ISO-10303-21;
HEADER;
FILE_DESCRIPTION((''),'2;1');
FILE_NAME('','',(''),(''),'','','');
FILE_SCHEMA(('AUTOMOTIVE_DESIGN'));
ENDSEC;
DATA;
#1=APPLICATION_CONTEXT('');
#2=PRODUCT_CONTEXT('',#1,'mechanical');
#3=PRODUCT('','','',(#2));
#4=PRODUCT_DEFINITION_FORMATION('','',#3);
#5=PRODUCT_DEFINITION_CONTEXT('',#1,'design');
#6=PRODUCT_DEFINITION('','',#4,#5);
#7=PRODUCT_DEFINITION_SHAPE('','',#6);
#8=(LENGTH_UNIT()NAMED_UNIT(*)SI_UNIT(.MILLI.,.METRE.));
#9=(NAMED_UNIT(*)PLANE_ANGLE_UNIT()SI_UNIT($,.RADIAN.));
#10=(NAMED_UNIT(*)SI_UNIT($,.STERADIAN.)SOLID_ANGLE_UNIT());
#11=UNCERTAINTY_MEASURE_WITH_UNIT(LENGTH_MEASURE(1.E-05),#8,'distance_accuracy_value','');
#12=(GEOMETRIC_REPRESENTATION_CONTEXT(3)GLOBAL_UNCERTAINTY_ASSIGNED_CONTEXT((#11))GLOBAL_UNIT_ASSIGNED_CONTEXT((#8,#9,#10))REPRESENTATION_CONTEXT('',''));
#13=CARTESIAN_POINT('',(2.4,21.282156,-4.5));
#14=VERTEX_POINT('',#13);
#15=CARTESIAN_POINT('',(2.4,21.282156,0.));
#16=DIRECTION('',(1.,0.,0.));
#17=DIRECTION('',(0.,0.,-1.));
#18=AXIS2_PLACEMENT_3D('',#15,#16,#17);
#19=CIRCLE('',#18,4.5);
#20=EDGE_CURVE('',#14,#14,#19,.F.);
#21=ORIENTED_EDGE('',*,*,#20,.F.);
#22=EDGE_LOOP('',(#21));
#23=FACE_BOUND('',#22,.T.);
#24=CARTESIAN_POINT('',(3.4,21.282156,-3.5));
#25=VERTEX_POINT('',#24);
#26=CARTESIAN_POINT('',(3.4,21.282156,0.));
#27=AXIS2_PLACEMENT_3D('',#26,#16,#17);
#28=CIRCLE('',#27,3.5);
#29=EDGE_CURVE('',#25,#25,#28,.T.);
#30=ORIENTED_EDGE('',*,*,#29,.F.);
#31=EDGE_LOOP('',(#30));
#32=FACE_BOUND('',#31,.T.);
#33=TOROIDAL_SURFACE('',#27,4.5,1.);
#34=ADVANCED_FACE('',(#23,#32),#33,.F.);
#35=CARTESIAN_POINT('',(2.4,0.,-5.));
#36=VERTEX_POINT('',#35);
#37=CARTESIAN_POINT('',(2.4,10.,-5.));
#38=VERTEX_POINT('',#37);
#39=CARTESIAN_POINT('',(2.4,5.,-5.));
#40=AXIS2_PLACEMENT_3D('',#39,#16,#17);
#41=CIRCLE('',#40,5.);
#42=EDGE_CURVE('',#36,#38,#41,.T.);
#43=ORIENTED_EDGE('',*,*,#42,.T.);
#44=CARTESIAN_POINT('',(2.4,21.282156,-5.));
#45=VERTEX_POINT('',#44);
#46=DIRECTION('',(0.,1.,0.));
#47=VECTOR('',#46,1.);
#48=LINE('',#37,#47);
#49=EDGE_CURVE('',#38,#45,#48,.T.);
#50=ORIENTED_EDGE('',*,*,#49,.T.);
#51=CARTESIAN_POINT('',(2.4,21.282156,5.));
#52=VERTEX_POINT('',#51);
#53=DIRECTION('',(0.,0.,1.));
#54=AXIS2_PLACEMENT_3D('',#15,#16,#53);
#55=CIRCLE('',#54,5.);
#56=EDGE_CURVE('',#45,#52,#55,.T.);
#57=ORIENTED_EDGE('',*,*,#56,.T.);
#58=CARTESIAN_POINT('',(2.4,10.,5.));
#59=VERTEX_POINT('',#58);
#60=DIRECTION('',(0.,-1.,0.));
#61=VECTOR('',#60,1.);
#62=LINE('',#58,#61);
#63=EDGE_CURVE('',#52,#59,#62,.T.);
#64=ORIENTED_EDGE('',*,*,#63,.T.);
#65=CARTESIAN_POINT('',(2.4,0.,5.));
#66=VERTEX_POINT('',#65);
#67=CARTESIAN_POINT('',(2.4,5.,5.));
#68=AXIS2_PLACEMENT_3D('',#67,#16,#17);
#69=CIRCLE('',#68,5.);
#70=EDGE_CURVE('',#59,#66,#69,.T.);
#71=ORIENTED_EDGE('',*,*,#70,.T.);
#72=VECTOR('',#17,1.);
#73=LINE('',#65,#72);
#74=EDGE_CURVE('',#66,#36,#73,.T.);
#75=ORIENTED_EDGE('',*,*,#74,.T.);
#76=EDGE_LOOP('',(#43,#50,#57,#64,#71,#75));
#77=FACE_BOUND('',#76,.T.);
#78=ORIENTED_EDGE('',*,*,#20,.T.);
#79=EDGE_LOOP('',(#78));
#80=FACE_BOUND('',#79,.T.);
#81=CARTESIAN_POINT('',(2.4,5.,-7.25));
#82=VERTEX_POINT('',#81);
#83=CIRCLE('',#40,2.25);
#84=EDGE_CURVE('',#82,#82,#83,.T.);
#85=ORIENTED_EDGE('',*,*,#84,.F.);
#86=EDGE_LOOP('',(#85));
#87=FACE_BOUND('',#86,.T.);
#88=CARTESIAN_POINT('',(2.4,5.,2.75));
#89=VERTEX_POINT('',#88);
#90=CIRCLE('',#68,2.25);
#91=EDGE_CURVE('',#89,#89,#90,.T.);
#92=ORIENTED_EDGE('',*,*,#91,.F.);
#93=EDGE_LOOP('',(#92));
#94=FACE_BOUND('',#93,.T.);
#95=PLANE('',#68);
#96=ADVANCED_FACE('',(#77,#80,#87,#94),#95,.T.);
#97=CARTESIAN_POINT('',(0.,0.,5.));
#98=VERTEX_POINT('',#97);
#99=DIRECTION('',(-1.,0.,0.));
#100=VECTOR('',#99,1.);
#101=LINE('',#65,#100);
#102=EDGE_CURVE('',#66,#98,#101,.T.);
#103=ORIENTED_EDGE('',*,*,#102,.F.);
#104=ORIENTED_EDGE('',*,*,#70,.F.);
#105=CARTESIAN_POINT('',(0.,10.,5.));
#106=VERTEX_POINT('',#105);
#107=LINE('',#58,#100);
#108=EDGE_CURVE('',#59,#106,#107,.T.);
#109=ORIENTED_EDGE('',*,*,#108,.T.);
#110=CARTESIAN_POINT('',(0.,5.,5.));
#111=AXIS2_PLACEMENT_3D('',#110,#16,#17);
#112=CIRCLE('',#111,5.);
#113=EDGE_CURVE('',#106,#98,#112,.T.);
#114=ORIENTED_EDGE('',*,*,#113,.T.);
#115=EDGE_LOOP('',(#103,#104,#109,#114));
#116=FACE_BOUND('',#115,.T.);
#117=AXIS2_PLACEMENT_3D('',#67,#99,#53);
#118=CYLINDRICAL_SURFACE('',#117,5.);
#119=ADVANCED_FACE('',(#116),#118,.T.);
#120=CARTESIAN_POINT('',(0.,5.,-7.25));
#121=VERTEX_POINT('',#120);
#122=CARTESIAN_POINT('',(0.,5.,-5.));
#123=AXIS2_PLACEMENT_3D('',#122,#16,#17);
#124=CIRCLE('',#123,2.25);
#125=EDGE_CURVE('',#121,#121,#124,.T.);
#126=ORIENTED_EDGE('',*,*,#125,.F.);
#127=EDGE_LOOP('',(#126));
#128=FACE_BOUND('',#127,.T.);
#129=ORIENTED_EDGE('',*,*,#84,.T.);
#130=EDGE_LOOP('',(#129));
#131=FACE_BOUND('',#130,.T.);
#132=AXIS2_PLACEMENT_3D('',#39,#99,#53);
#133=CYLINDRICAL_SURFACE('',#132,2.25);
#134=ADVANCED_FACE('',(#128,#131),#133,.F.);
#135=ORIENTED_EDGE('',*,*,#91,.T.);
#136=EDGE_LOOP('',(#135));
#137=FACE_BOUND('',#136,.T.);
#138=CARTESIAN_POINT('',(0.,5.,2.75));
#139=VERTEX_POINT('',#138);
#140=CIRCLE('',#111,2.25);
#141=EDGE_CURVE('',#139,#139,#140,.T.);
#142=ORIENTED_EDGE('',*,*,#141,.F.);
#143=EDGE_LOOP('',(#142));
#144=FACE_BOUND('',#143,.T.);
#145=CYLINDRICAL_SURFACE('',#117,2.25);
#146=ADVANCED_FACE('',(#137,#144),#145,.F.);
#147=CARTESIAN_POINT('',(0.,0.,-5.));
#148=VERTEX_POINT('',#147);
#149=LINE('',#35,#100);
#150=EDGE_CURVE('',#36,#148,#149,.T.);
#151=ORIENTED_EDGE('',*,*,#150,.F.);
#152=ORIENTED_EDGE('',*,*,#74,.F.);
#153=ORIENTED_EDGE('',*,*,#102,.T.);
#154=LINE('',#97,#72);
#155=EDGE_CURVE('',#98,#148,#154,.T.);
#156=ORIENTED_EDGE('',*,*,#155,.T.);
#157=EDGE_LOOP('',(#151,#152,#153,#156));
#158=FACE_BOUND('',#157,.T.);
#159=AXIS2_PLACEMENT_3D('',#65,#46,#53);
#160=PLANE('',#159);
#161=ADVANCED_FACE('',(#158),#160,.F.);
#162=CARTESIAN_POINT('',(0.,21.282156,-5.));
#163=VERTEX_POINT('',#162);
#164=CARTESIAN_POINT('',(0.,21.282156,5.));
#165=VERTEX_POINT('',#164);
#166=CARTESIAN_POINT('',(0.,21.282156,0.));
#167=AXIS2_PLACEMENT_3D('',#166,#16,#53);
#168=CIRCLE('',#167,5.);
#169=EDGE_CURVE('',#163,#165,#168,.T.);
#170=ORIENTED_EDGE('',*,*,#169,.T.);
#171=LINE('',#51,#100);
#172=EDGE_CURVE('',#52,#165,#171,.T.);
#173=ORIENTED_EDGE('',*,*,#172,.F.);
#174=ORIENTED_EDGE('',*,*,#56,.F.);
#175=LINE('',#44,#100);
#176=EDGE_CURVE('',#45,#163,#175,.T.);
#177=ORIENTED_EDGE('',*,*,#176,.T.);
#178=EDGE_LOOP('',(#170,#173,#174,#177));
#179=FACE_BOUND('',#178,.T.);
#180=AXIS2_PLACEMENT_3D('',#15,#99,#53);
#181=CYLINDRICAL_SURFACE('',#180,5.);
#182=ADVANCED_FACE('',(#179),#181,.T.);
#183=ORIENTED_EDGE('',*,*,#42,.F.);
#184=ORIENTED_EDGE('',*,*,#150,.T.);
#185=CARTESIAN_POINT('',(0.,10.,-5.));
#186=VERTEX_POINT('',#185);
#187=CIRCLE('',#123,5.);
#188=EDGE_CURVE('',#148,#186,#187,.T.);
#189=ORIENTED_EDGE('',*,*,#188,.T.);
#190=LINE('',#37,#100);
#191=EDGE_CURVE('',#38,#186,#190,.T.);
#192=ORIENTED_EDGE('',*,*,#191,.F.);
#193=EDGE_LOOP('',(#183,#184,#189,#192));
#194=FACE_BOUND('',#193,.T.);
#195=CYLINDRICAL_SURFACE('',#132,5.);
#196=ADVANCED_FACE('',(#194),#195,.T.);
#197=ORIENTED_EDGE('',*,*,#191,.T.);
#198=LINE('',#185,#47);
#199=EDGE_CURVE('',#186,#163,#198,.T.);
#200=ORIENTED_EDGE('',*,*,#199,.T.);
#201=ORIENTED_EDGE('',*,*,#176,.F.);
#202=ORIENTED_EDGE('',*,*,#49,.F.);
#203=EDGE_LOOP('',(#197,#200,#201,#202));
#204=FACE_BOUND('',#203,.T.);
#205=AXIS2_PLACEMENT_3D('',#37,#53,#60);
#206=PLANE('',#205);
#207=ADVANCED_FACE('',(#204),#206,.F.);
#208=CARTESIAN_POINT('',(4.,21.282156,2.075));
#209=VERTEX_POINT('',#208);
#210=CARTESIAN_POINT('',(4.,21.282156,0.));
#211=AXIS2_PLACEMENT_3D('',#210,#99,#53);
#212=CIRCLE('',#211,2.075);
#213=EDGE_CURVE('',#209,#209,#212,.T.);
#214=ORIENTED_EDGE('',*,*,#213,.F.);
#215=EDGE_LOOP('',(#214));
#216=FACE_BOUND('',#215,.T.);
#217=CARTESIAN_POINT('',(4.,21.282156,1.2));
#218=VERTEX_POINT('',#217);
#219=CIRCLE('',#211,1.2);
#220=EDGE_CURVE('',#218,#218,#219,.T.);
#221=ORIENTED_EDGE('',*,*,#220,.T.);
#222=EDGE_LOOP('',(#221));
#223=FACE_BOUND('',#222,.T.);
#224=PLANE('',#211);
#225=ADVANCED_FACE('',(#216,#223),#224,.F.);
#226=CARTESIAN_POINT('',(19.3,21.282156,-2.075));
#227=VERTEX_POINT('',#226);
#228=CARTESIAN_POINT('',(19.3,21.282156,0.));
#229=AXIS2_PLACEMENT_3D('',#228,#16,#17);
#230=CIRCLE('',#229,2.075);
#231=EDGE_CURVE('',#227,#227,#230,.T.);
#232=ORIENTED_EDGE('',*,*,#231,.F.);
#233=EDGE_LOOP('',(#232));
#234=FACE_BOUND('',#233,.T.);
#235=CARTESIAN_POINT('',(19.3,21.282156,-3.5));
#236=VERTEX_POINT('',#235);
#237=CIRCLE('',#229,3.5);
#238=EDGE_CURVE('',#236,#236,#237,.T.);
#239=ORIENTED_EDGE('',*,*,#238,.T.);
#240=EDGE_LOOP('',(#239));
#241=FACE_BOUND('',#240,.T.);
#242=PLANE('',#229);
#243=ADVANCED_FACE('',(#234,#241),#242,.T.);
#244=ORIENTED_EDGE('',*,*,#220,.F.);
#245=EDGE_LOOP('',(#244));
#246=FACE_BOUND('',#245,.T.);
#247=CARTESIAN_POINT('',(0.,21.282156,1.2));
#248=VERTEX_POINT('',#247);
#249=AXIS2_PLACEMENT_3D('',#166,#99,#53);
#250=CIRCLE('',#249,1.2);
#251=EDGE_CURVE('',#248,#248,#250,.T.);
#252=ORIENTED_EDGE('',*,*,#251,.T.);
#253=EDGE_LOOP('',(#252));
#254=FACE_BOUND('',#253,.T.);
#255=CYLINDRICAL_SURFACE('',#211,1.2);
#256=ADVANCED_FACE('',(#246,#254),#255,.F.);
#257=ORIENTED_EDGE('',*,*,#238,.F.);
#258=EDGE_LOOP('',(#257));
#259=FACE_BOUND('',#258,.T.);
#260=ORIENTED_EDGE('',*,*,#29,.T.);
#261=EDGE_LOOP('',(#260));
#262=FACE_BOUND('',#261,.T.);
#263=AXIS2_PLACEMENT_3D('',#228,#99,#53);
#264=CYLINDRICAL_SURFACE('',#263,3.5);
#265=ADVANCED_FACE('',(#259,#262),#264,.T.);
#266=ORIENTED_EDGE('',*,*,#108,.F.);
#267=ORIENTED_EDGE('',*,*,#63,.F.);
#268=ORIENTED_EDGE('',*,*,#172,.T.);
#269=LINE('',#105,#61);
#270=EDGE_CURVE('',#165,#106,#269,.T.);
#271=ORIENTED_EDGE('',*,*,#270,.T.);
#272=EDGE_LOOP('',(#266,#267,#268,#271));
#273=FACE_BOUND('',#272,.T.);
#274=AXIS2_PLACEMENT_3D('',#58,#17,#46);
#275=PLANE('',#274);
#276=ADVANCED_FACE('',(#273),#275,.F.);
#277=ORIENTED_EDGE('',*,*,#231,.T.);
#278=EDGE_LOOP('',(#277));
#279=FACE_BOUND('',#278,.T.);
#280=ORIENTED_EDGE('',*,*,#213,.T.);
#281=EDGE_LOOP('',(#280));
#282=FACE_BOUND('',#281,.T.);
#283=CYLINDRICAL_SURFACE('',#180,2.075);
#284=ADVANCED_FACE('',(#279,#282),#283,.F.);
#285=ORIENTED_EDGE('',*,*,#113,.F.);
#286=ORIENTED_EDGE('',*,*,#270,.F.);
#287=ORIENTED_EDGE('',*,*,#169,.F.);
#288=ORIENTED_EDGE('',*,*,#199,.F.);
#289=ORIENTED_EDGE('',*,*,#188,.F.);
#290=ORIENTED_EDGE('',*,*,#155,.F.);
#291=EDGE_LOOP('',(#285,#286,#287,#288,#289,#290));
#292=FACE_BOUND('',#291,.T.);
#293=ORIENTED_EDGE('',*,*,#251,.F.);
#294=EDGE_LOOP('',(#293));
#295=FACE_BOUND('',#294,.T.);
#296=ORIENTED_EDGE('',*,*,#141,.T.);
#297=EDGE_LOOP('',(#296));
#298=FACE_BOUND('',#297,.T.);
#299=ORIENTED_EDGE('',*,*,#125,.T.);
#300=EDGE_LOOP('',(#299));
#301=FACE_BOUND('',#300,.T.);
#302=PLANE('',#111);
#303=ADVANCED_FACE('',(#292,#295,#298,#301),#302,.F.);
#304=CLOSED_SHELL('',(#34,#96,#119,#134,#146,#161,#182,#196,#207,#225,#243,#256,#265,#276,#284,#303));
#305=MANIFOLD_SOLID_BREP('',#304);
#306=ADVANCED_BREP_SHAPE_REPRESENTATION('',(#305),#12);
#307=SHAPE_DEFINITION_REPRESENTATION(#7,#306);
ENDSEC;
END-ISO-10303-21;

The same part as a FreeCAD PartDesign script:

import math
import FreeCAD as App
import Part
import Sketcher


def edges_at(feature, points):
    """Names of the edges that pass closest to the given points."""
    edges = feature.Shape.Edges
    near = lambda p: min(range(len(edges)), key=lambda i: edges[i].distToShape(Part.Vertex(*p))[0])
    return sorted({f"Edge{near(p) + 1}" for p in points})

doc = App.newDocument("Part")
body = doc.addObject("PartDesign::Body", "Body")

# Sketch on YZ plane
sketch1 = body.newObject("Sketcher::SketchObject", "Sketch")
sketch1.AttachmentSupport = (doc.getObject("YZ_Plane"), [""])
sketch1.MapMode = "FlatFace"
sketch1.addGeometry([
    Part.LineSegment(App.Vector(0, 5, 0), App.Vector(0, -5, 0)),  # 0
    Part.ArcOfCircle(Part.Circle(App.Vector(5, -5, 0), App.Vector(0, 0, 1), 5), math.radians(180), math.radians(360)),  # 1
    Part.LineSegment(App.Vector(10, -5, 0), App.Vector(21.3, -5, 0)),  # 2
    Part.ArcOfCircle(Part.Circle(App.Vector(21.3, 0, 0), App.Vector(0, 0, 1), 5), math.radians(-90), math.radians(90)),  # 3
    Part.LineSegment(App.Vector(21.3, 5, 0), App.Vector(10, 5, 0)),  # 4
    Part.ArcOfCircle(Part.Circle(App.Vector(5, 5, 0), App.Vector(0, 0, 1), 5), math.radians(0), math.radians(180)),  # 5
    Part.Circle(App.Vector(5, 5, 0), App.Vector(0, 0, 1), 2.2),  # 6
    Part.Circle(App.Vector(5, -5, 0), App.Vector(0, 0, 1), 2.2),  # 7
    Part.Circle(App.Vector(21.3, 0, 0), App.Vector(0, 0, 1), 2.1),  # 8
], False)
sketch1.addConstraint([
    Sketcher.Constraint("Tangent", 0, 2, 1, 1),
    Sketcher.Constraint("Coincident", 1, 2, 2, 1),
    Sketcher.Constraint("Tangent", 2, 2, 3, 1),
    Sketcher.Constraint("Tangent", 3, 2, 4, 1),
    Sketcher.Constraint("Coincident", 4, 2, 5, 1),
    Sketcher.Constraint("Tangent", 5, 2, 0, 1),
    Sketcher.Constraint("Vertical", 0),
    Sketcher.Constraint("Horizontal", 2),
    Sketcher.Constraint("Horizontal", 4),
    Sketcher.Constraint("Coincident", 6, 3, 5, 3),
    Sketcher.Constraint("Coincident", 7, 3, 1, 3),
    Sketcher.Constraint("Coincident", 8, 3, 3, 3),
    Sketcher.Constraint("Equal", 1, 3),
    Sketcher.Constraint("Equal", 3, 5),
    Sketcher.Constraint("Equal", 6, 7),
    Sketcher.Constraint("Symmetric", 0, 2, 5, 2, -1, 1),
    Sketcher.Constraint("PointOnObject", 3, 3, -1),
    Sketcher.Constraint("Horizontal", 0, 2, 1, 2),
    Sketcher.Constraint("Radius", 1, 5.0),
    Sketcher.Constraint("Diameter", 6, 4.5),
    Sketcher.Constraint("Diameter", 8, 4.15),
    Sketcher.Constraint("DistanceX", 2, 1, 2, 2, 11.282156),
])
pad1 = body.newObject("PartDesign::Pad", "Pad")
pad1.Profile = sketch1
pad1.Length = 2.4

# Sketch on YZ plane
sketch2 = body.newObject("Sketcher::SketchObject", "Sketch001")
sketch2.AttachmentSupport = (doc.getObject("YZ_Plane"), [""])
sketch2.MapMode = "FlatFace"
sketch2.AttachmentOffset = App.Placement(App.Vector(0, 0, 2.4), App.Rotation())
sketch2.addGeometry([
    Part.Circle(App.Vector(21.3, 0, 0), App.Vector(0, 0, 1), 3.5),
    Part.Circle(App.Vector(21.3, 0, 0), App.Vector(0, 0, 1), 2.1),
], False)
sketch2.addConstraint([
    Sketcher.Constraint("Coincident", 1, 3, 0, 3),
    Sketcher.Constraint("PointOnObject", 0, 3, -1),
    Sketcher.Constraint("Diameter", 0, 7.0),
    Sketcher.Constraint("Diameter", 1, 4.15),
    Sketcher.Constraint("DistanceX", -1, 1, 0, 3, 21.282156),
])
pad2 = body.newObject("PartDesign::Pad", "Pad001")
pad2.Profile = sketch2
pad2.Length = 16.9
doc.recompute()

fillet = body.newObject("PartDesign::Fillet", "Fillet")
fillet.Base = (pad2, edges_at(pad2, [(2.4, 21.282, 3.5)]))
fillet.Radius = 1

# Sketch on YZ plane
sketch3 = body.newObject("Sketcher::SketchObject", "Sketch002")
sketch3.AttachmentSupport = (doc.getObject("YZ_Plane"), [""])
sketch3.MapMode = "FlatFace"
sketch3.addGeometry([
    Part.Circle(App.Vector(21.3, 0, 0), App.Vector(0, 0, 1), 2.1),
    Part.Circle(App.Vector(21.3, 0, 0), App.Vector(0, 0, 1), 1.2),
], False)
sketch3.addConstraint([
    Sketcher.Constraint("Coincident", 1, 3, 0, 3),
    Sketcher.Constraint("PointOnObject", 0, 3, -1),
    Sketcher.Constraint("Diameter", 1, 2.4),
    Sketcher.Constraint("Diameter", 0, 4.15),
    Sketcher.Constraint("DistanceX", -1, 1, 0, 3, 21.282156),
])
pad3 = body.newObject("PartDesign::Pad", "Pad002")
pad3.Profile = sketch3
pad3.Length = 4

doc.recompute()
